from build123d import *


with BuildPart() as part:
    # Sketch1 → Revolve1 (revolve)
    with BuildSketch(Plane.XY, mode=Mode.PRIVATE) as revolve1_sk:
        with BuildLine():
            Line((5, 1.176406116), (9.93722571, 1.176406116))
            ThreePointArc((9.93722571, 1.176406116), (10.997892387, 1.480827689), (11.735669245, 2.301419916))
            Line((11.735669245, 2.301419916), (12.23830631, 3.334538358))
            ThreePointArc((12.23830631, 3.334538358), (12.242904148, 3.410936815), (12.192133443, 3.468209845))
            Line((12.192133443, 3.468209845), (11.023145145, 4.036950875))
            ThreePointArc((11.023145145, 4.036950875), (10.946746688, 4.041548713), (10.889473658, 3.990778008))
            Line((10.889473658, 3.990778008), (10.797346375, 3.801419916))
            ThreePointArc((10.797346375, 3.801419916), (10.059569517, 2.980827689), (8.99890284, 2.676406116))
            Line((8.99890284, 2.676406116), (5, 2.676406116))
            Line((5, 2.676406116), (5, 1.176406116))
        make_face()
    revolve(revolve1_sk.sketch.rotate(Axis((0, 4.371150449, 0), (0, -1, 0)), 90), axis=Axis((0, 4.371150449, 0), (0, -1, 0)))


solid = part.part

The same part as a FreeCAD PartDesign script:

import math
import FreeCAD as App
import Part
import Sketcher
from FreeCAD import Vector
Q = App.Units.Quantity

doc = App.newDocument("Part")
body = doc.addObject("PartDesign::Body", "Body")

# Sketch on XY plane
sketch1 = body.newObject("Sketcher::SketchObject", "Sketch")
sketch1.AttachmentSupport = (doc.getObject("XY_Plane"), [""])
sketch1.MapMode = "FlatFace"
sketch1.addGeometry([
    Part.LineSegment(Vector(5, 1.176406, 0), Vector(9.937226, 1.176406, 0)),  # 0
    Part.ArcOfCircle(Part.Circle(Vector(9.937226, 3.176406, 0), Vector(0, 0, 1), 2), math.radians(-90), math.radians(-25.94404)),  # 1
    Part.LineSegment(Vector(11.735669, 2.30142, 0), Vector(12.238306, 3.334538, 0)),  # 2
    Part.ArcOfCircle(Part.Circle(Vector(12.148384, 3.378288, 0), Vector(0, 0, 1), 0.1), math.radians(-25.94404), math.radians(64.05596)),  # 3
    Part.LineSegment(Vector(12.192133, 3.46821, 0), Vector(11.023145, 4.036951, 0)),  # 4
    Part.ArcOfCircle(Part.Circle(Vector(10.979396, 3.947029, 0), Vector(0, 0, 1), 0.1), math.radians(64.05596), math.radians(154.05596)),  # 5
    Part.LineSegment(Vector(10.889474, 3.990778, 0), Vector(10.797346, 3.80142, 0)),  # 6
    Part.ArcOfCircle(Part.Circle(Vector(8.998903, 4.676406, 0), Vector(0, 0, 1), 2), math.radians(-90), math.radians(-25.94404)),  # 7
    Part.LineSegment(Vector(8.998903, 2.676406, 0), Vector(5, 2.676406, 0)),  # 8
    Part.LineSegment(Vector(5, 2.676406, 0), Vector(5, 1.176406, 0)),  # 9
], False)
sketch1.addConstraint([
    Sketcher.Constraint("Tangent", 0, 2, 1, 1),
    Sketcher.Constraint("Tangent", 1, 2, 2, 1),
    Sketcher.Constraint("Tangent", 2, 2, 3, 1),
    Sketcher.Constraint("Tangent", 3, 2, 4, 1),
    Sketcher.Constraint("Tangent", 4, 2, 5, 1),
    Sketcher.Constraint("Tangent", 5, 2, 6, 1),
    Sketcher.Constraint("Tangent", 6, 2, 7, 2),
    Sketcher.Constraint("Tangent", 7, 1, 8, 1),
    Sketcher.Constraint("Coincident", 8, 2, 9, 1),
    Sketcher.Constraint("Coincident", 9, 2, 0, 1),
    Sketcher.Constraint("Horizontal", 0),
    Sketcher.Constraint("Horizontal", 8),
    Sketcher.Constraint("Vertical", 9),
    Sketcher.Constraint("Equal", 3, 5),
    Sketcher.Constraint("Equal", 1, 7),
    Sketcher.Constraint("Perpendicular", 2, 4),
    Sketcher.Constraint("Perpendicular", 4, 6),
    Sketcher.Constraint("Radius", 1, Q("2 mm")),
    Sketcher.Constraint("Radius", 3, Q("0.1 mm")),
    Sketcher.Constraint("DistanceY", 9, 2, 9, 1, Q("1.5 mm")),
    Sketcher.Constraint("DistanceX", -1, 1, 8, 2, Q("5 mm")),
    Sketcher.Constraint("Distance", 4, Q("1.3 mm")),
    Sketcher.Constraint("DistanceX", 6, 2, 4, 2, Q("0.225799 mm")),
    Sketcher.Constraint("Distance", 6, Q("0.21058 mm")),
    Sketcher.Constraint("DistanceX", 0, 1, 0, 2, Q("4.937226 mm")),
    Sketcher.Constraint("DistanceY", -1, 1, 5, 3, Q("3.947029 mm")),
])
revolution = body.newObject("PartDesign::Revolution", "Revolution")
revolution.Profile = sketch1
revolution.ReferenceAxis = (sketch1, ["V_Axis"])
revolution.Angle = 360

doc.recompute()
